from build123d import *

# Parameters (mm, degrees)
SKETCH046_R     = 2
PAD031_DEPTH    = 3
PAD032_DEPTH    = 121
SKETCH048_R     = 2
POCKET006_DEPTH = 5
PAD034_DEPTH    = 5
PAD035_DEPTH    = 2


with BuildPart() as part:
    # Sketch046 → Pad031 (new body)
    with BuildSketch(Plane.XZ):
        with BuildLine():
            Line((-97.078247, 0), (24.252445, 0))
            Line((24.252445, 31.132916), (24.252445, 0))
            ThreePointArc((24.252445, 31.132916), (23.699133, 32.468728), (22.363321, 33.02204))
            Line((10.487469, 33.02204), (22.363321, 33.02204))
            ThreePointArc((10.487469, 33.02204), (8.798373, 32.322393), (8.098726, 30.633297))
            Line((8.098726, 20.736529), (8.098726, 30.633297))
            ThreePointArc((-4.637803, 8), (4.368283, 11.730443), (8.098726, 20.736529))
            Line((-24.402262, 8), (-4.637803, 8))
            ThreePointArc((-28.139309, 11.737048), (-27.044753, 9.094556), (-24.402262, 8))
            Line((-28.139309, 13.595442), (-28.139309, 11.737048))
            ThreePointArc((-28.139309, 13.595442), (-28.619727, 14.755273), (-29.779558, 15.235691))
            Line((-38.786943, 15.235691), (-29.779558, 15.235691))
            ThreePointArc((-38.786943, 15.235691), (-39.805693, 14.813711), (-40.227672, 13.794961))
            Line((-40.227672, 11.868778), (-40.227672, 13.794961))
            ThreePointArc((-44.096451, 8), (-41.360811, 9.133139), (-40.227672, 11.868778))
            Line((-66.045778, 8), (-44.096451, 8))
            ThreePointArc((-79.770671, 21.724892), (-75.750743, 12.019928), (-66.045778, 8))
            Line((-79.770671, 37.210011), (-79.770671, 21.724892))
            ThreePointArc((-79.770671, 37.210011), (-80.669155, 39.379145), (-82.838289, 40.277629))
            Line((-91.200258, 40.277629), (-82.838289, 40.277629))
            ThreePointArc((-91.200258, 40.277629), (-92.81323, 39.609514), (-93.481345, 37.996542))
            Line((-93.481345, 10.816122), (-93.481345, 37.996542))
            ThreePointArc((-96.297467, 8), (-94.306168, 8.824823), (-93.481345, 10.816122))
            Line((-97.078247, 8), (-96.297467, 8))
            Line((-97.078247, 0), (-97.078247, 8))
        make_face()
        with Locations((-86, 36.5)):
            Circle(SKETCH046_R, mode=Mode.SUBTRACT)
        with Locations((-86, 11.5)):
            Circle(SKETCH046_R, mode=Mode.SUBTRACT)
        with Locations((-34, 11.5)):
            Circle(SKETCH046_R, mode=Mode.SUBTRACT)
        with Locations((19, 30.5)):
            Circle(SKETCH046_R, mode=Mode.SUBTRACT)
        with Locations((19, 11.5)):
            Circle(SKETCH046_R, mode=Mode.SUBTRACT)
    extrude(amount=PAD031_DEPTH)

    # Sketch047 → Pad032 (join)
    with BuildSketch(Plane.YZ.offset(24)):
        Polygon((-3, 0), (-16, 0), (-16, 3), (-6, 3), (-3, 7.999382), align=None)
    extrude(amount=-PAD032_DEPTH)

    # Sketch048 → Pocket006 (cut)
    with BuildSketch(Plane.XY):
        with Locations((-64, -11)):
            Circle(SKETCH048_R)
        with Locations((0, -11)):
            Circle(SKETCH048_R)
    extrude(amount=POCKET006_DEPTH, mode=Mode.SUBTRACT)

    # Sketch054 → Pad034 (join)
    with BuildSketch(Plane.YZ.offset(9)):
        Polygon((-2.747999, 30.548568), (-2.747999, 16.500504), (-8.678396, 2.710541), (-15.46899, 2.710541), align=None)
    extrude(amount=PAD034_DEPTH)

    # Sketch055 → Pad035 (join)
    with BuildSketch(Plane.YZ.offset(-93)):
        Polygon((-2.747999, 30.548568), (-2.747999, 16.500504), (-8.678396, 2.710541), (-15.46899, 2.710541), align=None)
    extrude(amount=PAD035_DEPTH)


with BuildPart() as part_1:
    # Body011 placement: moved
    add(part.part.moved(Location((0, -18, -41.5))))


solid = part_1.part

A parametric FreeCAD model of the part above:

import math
import FreeCAD as App
import Part
import Sketcher
from FreeCAD import Vector


def add_polygon(sketch, points):
    """Adds a closed chain of lines whose ends are joined by coincident constraints."""
    first, n = sketch.GeometryCount, len(points)
    for a, b in zip(points, points[1:] + points[:1]):
        sketch.addGeometry(Part.LineSegment(App.Vector(*a, 0), App.Vector(*b, 0)), False)
    for i in range(n):
        sketch.addConstraint(Sketcher.Constraint("Coincident", first + i, 2, first + (i + 1) % n, 1))

doc = App.newDocument("Part")
body = doc.addObject("PartDesign::Body", "Body")

sketch1 = doc.addObject("Sketcher::SketchObject", "Sketch")
body.addObject(sketch1)
sketch1.AttachmentSupport = (doc.XZ_Plane, [""])
sketch1.MapMode = "FlatFace"
sketch1.addGeometry(Part.LineSegment(Vector(-97.1, 0, 0), Vector(24.3, 0, 0)), False)
sketch1.addGeometry(Part.LineSegment(Vector(24.3, 0, 0), Vector(24.3, 31.1, 0)), False)
sketch1.addGeometry(Part.ArcOfCircle(Part.Circle(Vector(22.4, 31.1, 0), Vector(0, 0, 1), 1.9), math.radians(0), math.radians(90)), False)
sketch1.addGeometry(Part.LineSegment(Vector(22.4, 33, 0), Vector(10.5, 33, 0)), False)
sketch1.addGeometry(Part.ArcOfCircle(Part.Circle(Vector(10.5, 30.6, 0), Vector(0, 0, 1), 2.4), math.radians(90), math.radians(180)), False)
sketch1.addGeometry(Part.LineSegment(Vector(8.1, 30.6, 0), Vector(8.1, 20.7, 0)), False)
sketch1.addGeometry(Part.ArcOfCircle(Part.Circle(Vector(-4.6, 20.7, 0), Vector(0, 0, 1), 12.7), math.radians(-90), math.radians(0)), False)
sketch1.addGeometry(Part.LineSegment(Vector(-4.6, 8, 0), Vector(-24.4, 8, 0)), False)
sketch1.addGeometry(Part.ArcOfCircle(Part.Circle(Vector(-24.4, 11.7, 0), Vector(0, 0, 1), 3.7), math.radians(180), math.radians(270)), False)
sketch1.addGeometry(Part.LineSegment(Vector(-28.1, 11.7, 0), Vector(-28.1, 13.6, 0)), False)
sketch1.addGeometry(Part.ArcOfCircle(Part.Circle(Vector(-29.8, 13.6, 0), Vector(0, 0, 1), 1.6), math.radians(0), math.radians(90)), False)
sketch1.addGeometry(Part.LineSegment(Vector(-29.8, 15.2, 0), Vector(-38.8, 15.2, 0)), False)
sketch1.addGeometry(Part.ArcOfCircle(Part.Circle(Vector(-38.8, 13.8, 0), Vector(0, 0, 1), 1.4), math.radians(90), math.radians(180)), False)
sketch1.addGeometry(Part.LineSegment(Vector(-40.2, 13.8, 0), Vector(-40.2, 11.9, 0)), False)
sketch1.addGeometry(Part.ArcOfCircle(Part.Circle(Vector(-44.1, 11.9, 0), Vector(0, 0, 1), 3.9), math.radians(-90), math.radians(0)), False)
sketch1.addGeometry(Part.LineSegment(Vector(-44.1, 8, 0), Vector(-66, 8, 0)), False)
sketch1.addGeometry(Part.ArcOfCircle(Part.Circle(Vector(-66, 21.7, 0), Vector(0, 0, 1), 13.7), math.radians(-180), math.radians(-90)), False)
sketch1.addGeometry(Part.LineSegment(Vector(-79.8, 21.7, 0), Vector(-79.8, 37.2, 0)), False)
sketch1.addGeometry(Part.ArcOfCircle(Part.Circle(Vector(-82.8, 37.2, 0), Vector(0, 0, 1), 3.1), math.radians(0), math.radians(90)), False)
sketch1.addGeometry(Part.LineSegment(Vector(-82.8, 40.3, 0), Vector(-91.2, 40.3, 0)), False)
sketch1.addGeometry(Part.ArcOfCircle(Part.Circle(Vector(-91.2, 38, 0), Vector(0, 0, 1), 2.3), math.radians(90), math.radians(180)), False)
sketch1.addGeometry(Part.LineSegment(Vector(-93.5, 38, 0), Vector(-93.5, 10.8, 0)), False)
sketch1.addGeometry(Part.ArcOfCircle(Part.Circle(Vector(-96.3, 10.8, 0), Vector(0, 0, 1), 2.8), math.radians(-90), math.radians(0)), False)
sketch1.addGeometry(Part.LineSegment(Vector(-96.3, 8, 0), Vector(-97.1, 8, 0)), False)
sketch1.addGeometry(Part.LineSegment(Vector(-97.1, 8, 0), Vector(-97.1, 0, 0)), False)
sketch1.addGeometry(Part.Circle(Vector(-86, 11.5, 0), Vector(0, 0, 1), 2), False)
sketch1.addGeometry(Part.Circle(Vector(-34, 11.5, 0), Vector(0, 0, 1), 2), False)
sketch1.addGeometry(Part.Circle(Vector(19, 11.5, 0), Vector(0, 0, 1), 2), False)
sketch1.addGeometry(Part.Circle(Vector(-86, 36.5, 0), Vector(0, 0, 1), 2), False)
sketch1.addGeometry(Part.Circle(Vector(19, 30.5, 0), Vector(0, 0, 1), 2), False)
sketch1.addConstraint(Sketcher.Constraint("Coincident", 0, 2, 1, 1))
sketch1.addConstraint(Sketcher.Constraint("Tangent", 1, 2, 2, 1))
sketch1.addConstraint(Sketcher.Constraint("Tangent", 2, 2, 3, 1))
sketch1.addConstraint(Sketcher.Constraint("Tangent", 3, 2, 4, 1))
sketch1.addConstraint(Sketcher.Constraint("Tangent", 4, 2, 5, 1))
sketch1.addConstraint(Sketcher.Constraint("Tangent", 5, 2, 6, 2))
sketch1.addConstraint(Sketcher.Constraint("Tangent", 6, 1, 7, 1))
sketch1.addConstraint(Sketcher.Constraint("Tangent", 7, 2, 8, 2))
sketch1.addConstraint(Sketcher.Constraint("Tangent", 8, 1, 9, 1))
sketch1.addConstraint(Sketcher.Constraint("Tangent", 9, 2, 10, 1))
sketch1.addConstraint(Sketcher.Constraint("Tangent", 10, 2, 11, 1))
sketch1.addConstraint(Sketcher.Constraint("Tangent", 11, 2, 12, 1))
sketch1.addConstraint(Sketcher.Constraint("Tangent", 12, 2, 13, 1))
sketch1.addConstraint(Sketcher.Constraint("Tangent", 13, 2, 14, 2))
sketch1.addConstraint(Sketcher.Constraint("Tangent", 14, 1, 15, 1))
sketch1.addConstraint(Sketcher.Constraint("Tangent", 15, 2, 16, 2))
sketch1.addConstraint(Sketcher.Constraint("Tangent", 16, 1, 17, 1))
sketch1.addConstraint(Sketcher.Constraint("Tangent", 17, 2, 18, 1))
sketch1.addConstraint(Sketcher.Constraint("Tangent", 18, 2, 19, 1))
sketch1.addConstraint(Sketcher.Constraint("Tangent", 19, 2, 20, 1))
sketch1.addConstraint(Sketcher.Constraint("Tangent", 20, 2, 21, 1))
sketch1.addConstraint(Sketcher.Constraint("Tangent", 21, 2, 22, 2))
sketch1.addConstraint(Sketcher.Constraint("Tangent", 22, 1, 23, 1))
sketch1.addConstraint(Sketcher.Constraint("Coincident", 23, 2, 24, 1))
sketch1.addConstraint(Sketcher.Constraint("Coincident", 24, 2, 0, 1))
sketch1.addConstraint(Sketcher.Constraint("Horizontal", 0))
sketch1.addConstraint(Sketcher.Constraint("Vertical", 1))
sketch1.addConstraint(Sketcher.Constraint("Horizontal", 3))
sketch1.addConstraint(Sketcher.Constraint("Vertical", 5))
sketch1.addConstraint(Sketcher.Constraint("Horizontal", 7))
sketch1.addConstraint(Sketcher.Constraint("Vertical", 9))
sketch1.addConstraint(Sketcher.Constraint("Horizontal", 11))
sketch1.addConstraint(Sketcher.Constraint("Vertical", 13))
sketch1.addConstraint(Sketcher.Constraint("Horizontal", 15))
sketch1.addConstraint(Sketcher.Constraint("Vertical", 17))
sketch1.addConstraint(Sketcher.Constraint("Horizontal", 19))
sketch1.addConstraint(Sketcher.Constraint("Vertical", 21))
sketch1.addConstraint(Sketcher.Constraint("Horizontal", 23))
sketch1.addConstraint(Sketcher.Constraint("Vertical", 24))
sketch1.addConstraint(Sketcher.Constraint("Equal", 25, 26))
sketch1.addConstraint(Sketcher.Constraint("Equal", 26, 27))
sketch1.addConstraint(Sketcher.Constraint("Equal", 27, 28))
sketch1.addConstraint(Sketcher.Constraint("Equal", 28, 29))
sketch1.addConstraint(Sketcher.Constraint("PointOnObject", 0, 2, -1))
sketch1.addConstraint(Sketcher.Constraint("Horizontal", 25, 3, 26, 3))
sketch1.addConstraint(Sketcher.Constraint("Horizontal", 26, 3, 27, 3))
sketch1.addConstraint(Sketcher.Constraint("Horizontal", 7, 2, 14, 1))
sketch1.addConstraint(Sketcher.Constraint("Horizontal", 15, 2, 22, 1))
sketch1.addConstraint(Sketcher.Constraint("Vertical", 25, 3, 28, 3))
sketch1.addConstraint(Sketcher.Constraint("Vertical", 27, 3, 29, 3))
sketch1.addConstraint(Sketcher.Constraint("Diameter", 25, 4.0))
sketch1.addConstraint(Sketcher.Constraint("DistanceY", 24, 2, 24, 1, 8.0))
sketch1.addConstraint(Sketcher.Constraint("DistanceX", 25, 3, -1, 1, 86.0))
sketch1.addConstraint(Sketcher.Constraint("DistanceX", 26, 3, -1, 1, 34.0))
sketch1.addConstraint(Sketcher.Constraint("DistanceX", -1, 1, 27, 3, 19.0))
sketch1.addConstraint(Sketcher.Constraint("DistanceY", 25, 3, 28, 3, 25.0))
sketch1.addConstraint(Sketcher.Constraint("DistanceY", 27, 3, 29, 3, 19.0))
sketch1.addConstraint(Sketcher.Constraint("DistanceY", -1, 1, 25, 3, 11.5))
sketch1.addConstraint(Sketcher.Constraint("Radius", 6, 12.736529))
sketch1.addConstraint(Sketcher.Constraint("Radius", 10, 1.64025))
sketch1.addConstraint(Sketcher.Constraint("Radius", 12, 1.440728))
sketch1.addConstraint(Sketcher.Constraint("Radius", 14, 3.868779))
sketch1.addConstraint(Sketcher.Constraint("Radius", 22, 2.816122))
sketch1.addConstraint(Sketcher.Constraint("Radius", 2, 1.889125))
sketch1.addConstraint(Sketcher.Constraint("Radius", 4, 2.388744))
sketch1.addConstraint(Sketcher.Constraint("Radius", 8, 3.737048))
sketch1.addConstraint(Sketcher.Constraint("Radius", 16, 13.724893))
sketch1.addConstraint(Sketcher.Constraint("Radius", 18, 3.067616))
sketch1.addConstraint(Sketcher.Constraint("Radius", 20, 2.281087))
sketch1.addConstraint(Sketcher.Constraint("DistanceX", 0, 1, 0, 2, 121.330692))
sketch1.addConstraint(Sketcher.Constraint("DistanceX", 3, 2, 3, 1, 11.875852))
sketch1.addConstraint(Sketcher.Constraint("DistanceX", 7, 2, 7, 1, 19.764459))
sketch1.addConstraint(Sketcher.Constraint("DistanceX", 19, 2, 19, 1, 8.361969))
sketch1.addConstraint(Sketcher.Constraint("DistanceX", 23, 2, 23, 1, 0.78078))
sketch1.addConstraint(Sketcher.Constraint("DistanceY", 17, 1, 17, 2, 15.485119))
sketch1.addConstraint(Sketcher.Constraint("DistanceY", 10, 3, 20, 3, 24.4011))
sketch1.addConstraint(Sketcher.Constraint("DistanceX", 11, 2, 11, 1, 9.007385))
sketch1.addConstraint(Sketcher.Constraint("DistanceY", 1, 1, 1, 2, 31.132916))
sketch1.addConstraint(Sketcher.Constraint("DistanceX", -1, 1, 2, 3, 22.36332))
pad1 = doc.addObject("PartDesign::Pad", "Pad")
body.addObject(pad1)
pad1.Profile = sketch1
pad1.Length = 3

sketch2 = doc.addObject("Sketcher::SketchObject", "Sketch001")
body.addObject(sketch2)
sketch2.AttachmentSupport = (doc.YZ_Plane, [""])
sketch2.MapMode = "FlatFace"
sketch2.AttachmentOffset = App.Placement(Vector(0, 0, 24), App.Rotation())
add_polygon(sketch2, [(-16, 0), (-3, 0), (-3, 8), (-6, 3), (-16, 3)])
sketch2.addConstraint(Sketcher.Constraint("Horizontal", 0))
sketch2.addConstraint(Sketcher.Constraint("Vertical", 1))
sketch2.addConstraint(Sketcher.Constraint("Horizontal", 3))
sketch2.addConstraint(Sketcher.Constraint("Vertical", 4))
sketch2.addConstraint(Sketcher.Constraint("PointOnObject", 0, 2, -1))
sketch2.addConstraint(Sketcher.Constraint("DistanceX", 0, 1, 0, 2, 13.0))
sketch2.addConstraint(Sketcher.Constraint("DistanceX", 3, 2, 3, 1, 10.0))
sketch2.addConstraint(Sketcher.Constraint("DistanceY", 4, 2, 4, 1, 3.0))
sketch2.addConstraint(Sketcher.Constraint("DistanceX", 0, 2, -1, 1, 3.0))
sketch2.addConstraint(Sketcher.Constraint("DistanceY", 1, 1, 1, 2, 7.999382))
pad2 = doc.addObject("PartDesign::Pad", "Pad001")
body.addObject(pad2)
pad2.Profile = sketch2
pad2.Length = 121
pad2.Reversed = True

sketch3 = doc.addObject("Sketcher::SketchObject", "Sketch002")
body.addObject(sketch3)
sketch3.AttachmentSupport = (doc.XY_Plane, [""])
sketch3.MapMode = "FlatFace"
sketch3.addGeometry(Part.Circle(Vector(-64, -11, 0), Vector(0, 0, 1), 2), False)
sketch3.addGeometry(Part.Circle(Vector(0, -11, 0), Vector(0, 0, 1), 2), False)
sketch3.addConstraint(Sketcher.Constraint("Equal", 0, 1))
sketch3.addConstraint(Sketcher.Constraint("PointOnObject", 1, 3, -2))
sketch3.addConstraint(Sketcher.Constraint("Horizontal", 0, 3, 1, 3))
sketch3.addConstraint(Sketcher.Constraint("Diameter", 0, 4.0))
sketch3.addConstraint(Sketcher.Constraint("DistanceX", 0, 3, -1, 1, 64.0))
sketch3.addConstraint(Sketcher.Constraint("DistanceY", 0, 3, -1, 1, 11.0))
pocket1 = doc.addObject("PartDesign::Pocket", "Pocket")
body.addObject(pocket1)
pocket1.Profile = sketch3
pocket1.Length = 5
pocket1.Reversed = True

sketch4 = doc.addObject("Sketcher::SketchObject", "Sketch003")
body.addObject(sketch4)
sketch4.AttachmentSupport = (doc.YZ_Plane, [""])
sketch4.MapMode = "FlatFace"
sketch4.AttachmentOffset = App.Placement(Vector(0, 0, 9), App.Rotation())
add_polygon(sketch4, [(-3, 17), (-3, 31), (-15, 3), (-9, 3)])
sketch4.addConstraint(Sketcher.Constraint("Vertical", 0))
sketch4.addConstraint(Sketcher.Constraint("Horizontal", 2))
sketch4.addConstraint(Sketcher.Constraint("DistanceX", 0, 2, -1, 1, 2.747999))
sketch4.addConstraint(Sketcher.Constraint("Distance", 1, 30.606852))
sketch4.addConstraint(Sketcher.Constraint("DistanceX", 2, 1, 2, 2, 6.790594))
sketch4.addConstraint(Sketcher.Constraint("DistanceY", 0, 1, 0, 2, 14.048064))
sketch4.addConstraint(Sketcher.Constraint("DistanceX", 1, 2, -1, 1, 15.46899))
sketch4.addConstraint(Sketcher.Constraint("DistanceY", -1, 1, 1, 2, 2.710541))
pad3 = doc.addObject("PartDesign::Pad", "Pad002")
body.addObject(pad3)
pad3.Profile = sketch4
pad3.Length = 5

sketch5 = doc.addObject("Sketcher::SketchObject", "Sketch004")
body.addObject(sketch5)
sketch5.AttachmentSupport = (doc.YZ_Plane, [""])
sketch5.MapMode = "FlatFace"
sketch5.AttachmentOffset = App.Placement(Vector(0, 0, -93), App.Rotation())
add_polygon(sketch5, [(-3, 17), (-3, 31), (-15, 3), (-9, 3)])
sketch5.addConstraint(Sketcher.Constraint("Vertical", 0))
sketch5.addConstraint(Sketcher.Constraint("Horizontal", 2))
sketch5.addConstraint(Sketcher.Constraint("DistanceX", 0, 2, -1, 1, 2.747999))
sketch5.addConstraint(Sketcher.Constraint("Distance", 1, 30.606852))
sketch5.addConstraint(Sketcher.Constraint("DistanceX", 2, 1, 2, 2, 6.790594))
sketch5.addConstraint(Sketcher.Constraint("DistanceY", 0, 1, 0, 2, 14.048064))
sketch5.addConstraint(Sketcher.Constraint("DistanceX", 1, 2, -1, 1, 15.46899))
sketch5.addConstraint(Sketcher.Constraint("DistanceY", -1, 1, 1, 2, 2.710541))
pad4 = doc.addObject("PartDesign::Pad", "Pad003")
body.addObject(pad4)
pad4.Profile = sketch5
pad4.Length = 2
body2 = doc.addObject("PartDesign::Body", "Body001")
doc.recompute()

body.Placement = App.Placement(Vector(0, -18, -41.5), App.Rotation(Vector(0, 0, 1), 0))
boolean = doc.addObject("PartDesign::Boolean", "Boolean")
body2.addObject(boolean)
boolean.Type = "Fuse"
boolean.addObjects([body])

doc.recompute()
